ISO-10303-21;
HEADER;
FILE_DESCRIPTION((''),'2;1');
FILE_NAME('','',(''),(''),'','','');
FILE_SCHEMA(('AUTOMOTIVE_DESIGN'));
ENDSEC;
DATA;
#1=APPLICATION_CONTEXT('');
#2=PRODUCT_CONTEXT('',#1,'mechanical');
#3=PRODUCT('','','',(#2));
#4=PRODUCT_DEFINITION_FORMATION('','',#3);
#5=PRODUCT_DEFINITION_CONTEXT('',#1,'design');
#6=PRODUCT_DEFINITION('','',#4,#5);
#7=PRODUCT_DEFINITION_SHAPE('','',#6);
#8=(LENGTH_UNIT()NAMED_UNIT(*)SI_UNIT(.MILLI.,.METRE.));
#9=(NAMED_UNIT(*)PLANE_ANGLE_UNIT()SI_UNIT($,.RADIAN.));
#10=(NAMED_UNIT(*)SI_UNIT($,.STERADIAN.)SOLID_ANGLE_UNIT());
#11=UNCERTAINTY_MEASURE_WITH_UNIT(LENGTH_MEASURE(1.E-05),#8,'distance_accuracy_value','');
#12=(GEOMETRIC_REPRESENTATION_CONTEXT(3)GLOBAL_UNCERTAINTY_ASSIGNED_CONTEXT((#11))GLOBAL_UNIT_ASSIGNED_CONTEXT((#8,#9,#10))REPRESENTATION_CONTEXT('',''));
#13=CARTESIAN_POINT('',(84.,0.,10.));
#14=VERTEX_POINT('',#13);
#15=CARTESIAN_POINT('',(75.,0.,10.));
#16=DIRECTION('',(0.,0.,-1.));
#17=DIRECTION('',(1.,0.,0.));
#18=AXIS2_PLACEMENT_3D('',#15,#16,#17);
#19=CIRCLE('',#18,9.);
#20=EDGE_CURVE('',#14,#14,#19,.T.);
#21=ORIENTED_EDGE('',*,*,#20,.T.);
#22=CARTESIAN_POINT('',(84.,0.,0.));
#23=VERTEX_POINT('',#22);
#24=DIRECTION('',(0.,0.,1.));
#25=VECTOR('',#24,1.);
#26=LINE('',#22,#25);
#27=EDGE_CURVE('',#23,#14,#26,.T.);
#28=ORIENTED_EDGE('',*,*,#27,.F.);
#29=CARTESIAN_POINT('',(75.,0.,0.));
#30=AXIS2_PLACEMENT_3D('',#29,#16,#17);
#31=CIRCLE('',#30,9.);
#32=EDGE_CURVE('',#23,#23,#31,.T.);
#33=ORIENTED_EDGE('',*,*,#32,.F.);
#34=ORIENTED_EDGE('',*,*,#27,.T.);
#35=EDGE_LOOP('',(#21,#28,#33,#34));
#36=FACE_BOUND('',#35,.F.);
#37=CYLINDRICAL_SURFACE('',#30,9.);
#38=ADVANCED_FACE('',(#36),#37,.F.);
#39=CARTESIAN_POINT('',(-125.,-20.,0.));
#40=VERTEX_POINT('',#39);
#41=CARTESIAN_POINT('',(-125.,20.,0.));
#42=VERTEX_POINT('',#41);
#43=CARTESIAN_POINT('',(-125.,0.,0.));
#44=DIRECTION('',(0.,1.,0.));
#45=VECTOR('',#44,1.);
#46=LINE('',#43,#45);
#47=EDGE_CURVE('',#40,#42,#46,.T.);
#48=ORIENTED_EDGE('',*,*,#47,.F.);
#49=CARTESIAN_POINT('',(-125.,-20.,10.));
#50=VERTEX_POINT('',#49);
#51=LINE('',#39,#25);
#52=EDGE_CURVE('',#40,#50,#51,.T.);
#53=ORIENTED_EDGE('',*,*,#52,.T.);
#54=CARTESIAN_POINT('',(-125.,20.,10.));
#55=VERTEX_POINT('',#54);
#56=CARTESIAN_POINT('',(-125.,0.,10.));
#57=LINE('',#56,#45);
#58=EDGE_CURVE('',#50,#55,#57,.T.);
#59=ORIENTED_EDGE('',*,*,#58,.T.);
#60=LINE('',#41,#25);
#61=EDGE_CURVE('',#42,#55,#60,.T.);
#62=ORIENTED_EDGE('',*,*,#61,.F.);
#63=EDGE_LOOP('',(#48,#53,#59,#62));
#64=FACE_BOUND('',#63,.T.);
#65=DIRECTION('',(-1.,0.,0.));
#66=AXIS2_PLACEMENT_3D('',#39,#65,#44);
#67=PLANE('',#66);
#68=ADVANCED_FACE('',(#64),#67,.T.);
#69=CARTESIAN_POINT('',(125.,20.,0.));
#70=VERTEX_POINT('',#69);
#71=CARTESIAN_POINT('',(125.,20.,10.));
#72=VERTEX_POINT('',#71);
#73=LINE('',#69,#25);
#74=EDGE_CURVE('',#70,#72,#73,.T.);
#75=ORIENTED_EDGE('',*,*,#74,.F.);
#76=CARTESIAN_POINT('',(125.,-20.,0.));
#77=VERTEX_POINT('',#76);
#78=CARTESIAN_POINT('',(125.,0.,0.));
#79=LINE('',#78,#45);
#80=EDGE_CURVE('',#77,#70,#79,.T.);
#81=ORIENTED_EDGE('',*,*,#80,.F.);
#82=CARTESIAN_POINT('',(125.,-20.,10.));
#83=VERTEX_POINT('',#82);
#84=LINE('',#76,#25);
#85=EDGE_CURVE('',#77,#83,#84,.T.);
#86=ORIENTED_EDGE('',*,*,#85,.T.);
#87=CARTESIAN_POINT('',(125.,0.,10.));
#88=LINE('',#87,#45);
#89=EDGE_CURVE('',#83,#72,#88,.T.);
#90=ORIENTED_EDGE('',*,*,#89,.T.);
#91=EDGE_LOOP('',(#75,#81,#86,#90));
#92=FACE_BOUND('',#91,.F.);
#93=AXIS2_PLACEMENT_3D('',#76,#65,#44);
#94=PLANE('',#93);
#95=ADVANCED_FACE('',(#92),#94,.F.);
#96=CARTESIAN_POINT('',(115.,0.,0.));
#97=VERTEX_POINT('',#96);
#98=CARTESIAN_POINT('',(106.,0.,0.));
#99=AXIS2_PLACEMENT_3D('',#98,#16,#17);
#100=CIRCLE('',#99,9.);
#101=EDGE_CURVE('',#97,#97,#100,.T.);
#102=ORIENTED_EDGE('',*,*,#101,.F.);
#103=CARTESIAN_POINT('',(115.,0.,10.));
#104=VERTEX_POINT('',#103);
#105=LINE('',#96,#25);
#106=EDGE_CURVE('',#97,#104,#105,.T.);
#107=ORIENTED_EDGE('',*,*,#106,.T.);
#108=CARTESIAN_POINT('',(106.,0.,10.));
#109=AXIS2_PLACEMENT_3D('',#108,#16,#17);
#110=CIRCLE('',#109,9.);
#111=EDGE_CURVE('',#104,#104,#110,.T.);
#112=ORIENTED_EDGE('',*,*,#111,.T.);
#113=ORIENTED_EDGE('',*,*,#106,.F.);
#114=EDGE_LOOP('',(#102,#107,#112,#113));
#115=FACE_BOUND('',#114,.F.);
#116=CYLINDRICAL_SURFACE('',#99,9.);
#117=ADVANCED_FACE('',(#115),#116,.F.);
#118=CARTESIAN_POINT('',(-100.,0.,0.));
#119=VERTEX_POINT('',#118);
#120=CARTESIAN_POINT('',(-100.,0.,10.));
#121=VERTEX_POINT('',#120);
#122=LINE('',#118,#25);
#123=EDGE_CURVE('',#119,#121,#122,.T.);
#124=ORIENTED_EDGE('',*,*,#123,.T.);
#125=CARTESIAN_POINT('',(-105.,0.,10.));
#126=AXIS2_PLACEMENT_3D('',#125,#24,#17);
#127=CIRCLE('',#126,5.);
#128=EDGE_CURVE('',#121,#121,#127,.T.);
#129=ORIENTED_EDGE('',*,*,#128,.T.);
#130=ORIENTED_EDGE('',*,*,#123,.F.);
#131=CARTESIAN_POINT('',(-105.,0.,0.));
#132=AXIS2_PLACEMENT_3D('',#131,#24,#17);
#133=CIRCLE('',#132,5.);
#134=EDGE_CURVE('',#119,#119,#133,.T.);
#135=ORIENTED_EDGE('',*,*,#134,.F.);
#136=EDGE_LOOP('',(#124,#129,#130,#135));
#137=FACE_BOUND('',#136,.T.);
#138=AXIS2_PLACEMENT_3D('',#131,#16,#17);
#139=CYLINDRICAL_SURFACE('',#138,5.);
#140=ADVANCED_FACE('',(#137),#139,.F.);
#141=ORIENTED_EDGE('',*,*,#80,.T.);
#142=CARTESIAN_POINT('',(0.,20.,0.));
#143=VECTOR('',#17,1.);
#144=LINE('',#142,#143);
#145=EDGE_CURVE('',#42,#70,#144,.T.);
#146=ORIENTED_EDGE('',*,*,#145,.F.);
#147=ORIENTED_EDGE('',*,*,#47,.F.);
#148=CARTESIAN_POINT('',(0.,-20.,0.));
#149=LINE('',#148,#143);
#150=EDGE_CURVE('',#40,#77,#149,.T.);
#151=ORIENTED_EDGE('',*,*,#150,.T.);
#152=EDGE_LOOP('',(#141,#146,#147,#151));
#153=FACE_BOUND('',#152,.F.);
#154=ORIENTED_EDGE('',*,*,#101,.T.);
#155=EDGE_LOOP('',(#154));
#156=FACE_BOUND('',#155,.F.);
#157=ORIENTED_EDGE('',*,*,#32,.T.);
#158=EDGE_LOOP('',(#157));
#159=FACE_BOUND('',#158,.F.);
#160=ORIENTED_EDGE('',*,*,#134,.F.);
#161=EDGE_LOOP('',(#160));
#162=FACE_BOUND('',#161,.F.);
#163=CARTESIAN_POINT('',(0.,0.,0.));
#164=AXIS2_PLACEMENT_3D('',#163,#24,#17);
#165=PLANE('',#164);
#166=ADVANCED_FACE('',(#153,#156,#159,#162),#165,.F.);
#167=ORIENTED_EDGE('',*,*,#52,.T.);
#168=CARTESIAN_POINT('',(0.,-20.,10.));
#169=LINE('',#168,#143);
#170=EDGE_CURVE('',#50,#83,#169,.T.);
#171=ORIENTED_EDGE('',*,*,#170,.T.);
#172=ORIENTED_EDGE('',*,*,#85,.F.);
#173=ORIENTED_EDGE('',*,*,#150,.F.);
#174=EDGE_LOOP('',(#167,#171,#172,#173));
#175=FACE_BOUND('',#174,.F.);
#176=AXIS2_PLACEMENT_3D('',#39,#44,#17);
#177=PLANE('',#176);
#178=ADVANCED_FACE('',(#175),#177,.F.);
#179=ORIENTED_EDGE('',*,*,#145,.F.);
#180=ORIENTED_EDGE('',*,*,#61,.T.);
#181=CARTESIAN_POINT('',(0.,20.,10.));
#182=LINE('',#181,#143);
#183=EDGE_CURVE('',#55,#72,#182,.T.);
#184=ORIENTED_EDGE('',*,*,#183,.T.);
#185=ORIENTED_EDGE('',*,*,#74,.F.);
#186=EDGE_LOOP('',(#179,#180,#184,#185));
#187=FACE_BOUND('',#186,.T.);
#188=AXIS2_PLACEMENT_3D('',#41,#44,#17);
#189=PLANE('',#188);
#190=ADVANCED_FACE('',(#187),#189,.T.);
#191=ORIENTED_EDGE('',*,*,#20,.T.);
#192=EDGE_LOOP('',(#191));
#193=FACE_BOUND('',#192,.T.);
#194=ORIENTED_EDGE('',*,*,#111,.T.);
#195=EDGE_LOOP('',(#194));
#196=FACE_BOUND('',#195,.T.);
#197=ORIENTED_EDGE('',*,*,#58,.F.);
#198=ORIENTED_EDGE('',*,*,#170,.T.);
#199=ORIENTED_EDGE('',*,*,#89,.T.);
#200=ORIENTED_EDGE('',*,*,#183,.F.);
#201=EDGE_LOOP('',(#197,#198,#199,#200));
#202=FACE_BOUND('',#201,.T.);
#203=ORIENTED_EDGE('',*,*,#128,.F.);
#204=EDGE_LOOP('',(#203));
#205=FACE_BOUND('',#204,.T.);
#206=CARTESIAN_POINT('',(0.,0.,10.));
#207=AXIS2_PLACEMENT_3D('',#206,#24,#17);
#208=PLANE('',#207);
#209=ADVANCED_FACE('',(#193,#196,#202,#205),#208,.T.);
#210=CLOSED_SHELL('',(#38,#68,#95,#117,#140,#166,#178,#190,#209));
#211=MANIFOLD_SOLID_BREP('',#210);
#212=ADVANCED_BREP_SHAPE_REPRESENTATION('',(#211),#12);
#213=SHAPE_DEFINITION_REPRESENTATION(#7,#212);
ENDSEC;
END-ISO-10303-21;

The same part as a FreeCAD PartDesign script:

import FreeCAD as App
import Part
import Sketcher
Q = App.Units.Quantity

doc = App.newDocument("Part")
body = doc.addObject("PartDesign::Body", "Body")

# Sketch on XY plane
sketch1 = doc.addObject("Sketcher::SketchObject", "Sketch")
body.addObject(sketch1)
sketch1.AttachmentSupport = (doc.XY_Plane, [""])
sketch1.MapMode = "FlatFace"
sketch1.addGeometry([
    Part.LineSegment(App.Vector(-125, 20, 0), App.Vector(-125, -20, 0)),  # 0
    Part.LineSegment(App.Vector(-125, -20, 0), App.Vector(125, -20, 0)),  # 1
    Part.LineSegment(App.Vector(125, -20, 0), App.Vector(125, 20, 0)),  # 2
    Part.LineSegment(App.Vector(125, 20, 0), App.Vector(-125, 20, 0)),  # 3
    Part.Circle(App.Vector(-105, 0, 0), App.Vector(0, 0, 1), 5),  # 4
], False)
sketch1.addConstraint([
    Sketcher.Constraint("Coincident", 0, 2, 1, 1),
    Sketcher.Constraint("Coincident", 1, 2, 2, 1),
    Sketcher.Constraint("Coincident", 2, 2, 3, 1),
    Sketcher.Constraint("Coincident", 3, 2, 0, 1),
    Sketcher.Constraint("Vertical", 0),
    Sketcher.Constraint("Horizontal", 1),
    Sketcher.Constraint("Vertical", 2),
    Sketcher.Constraint("Horizontal", 3),
    Sketcher.Constraint("Symmetric", 0, 2, 2, 2, -1, 1),
    Sketcher.Constraint("PointOnObject", 4, 3, -1),
    Sketcher.Constraint("Diameter", 4, Q("10 mm")),
    Sketcher.Constraint("DistanceX", 1, 1, 1, 2, Q("250 mm")),
    Sketcher.Constraint("DistanceY", 0, 2, 0, 1, Q("40 mm")),
    Sketcher.Constraint("DistanceX", 4, 3, -1, 1, Q("105 mm")),
])
pad1 = doc.addObject("PartDesign::Pad", "Pad")
body.addObject(pad1)
pad1.Profile = sketch1
pad1.Length = 10

# Sketch on XY plane
sketch2 = doc.addObject("Sketcher::SketchObject", "Sketch001")
body.addObject(sketch2)
sketch2.AttachmentSupport = (doc.XY_Plane, [""])
sketch2.MapMode = "FlatFace"
sketch2.addGeometry(Part.Circle(App.Vector(106, 0, 0), App.Vector(0, 0, 1), 9), False)
sketch2.addConstraint([
    Sketcher.Constraint("PointOnObject", 0, 3, -1),
    Sketcher.Constraint("Diameter", 0, Q("18 mm")),
    Sketcher.Constraint("DistanceX", -1, 1, 0, 3, Q("106 mm")),
])
pocket1 = doc.addObject("PartDesign::Pocket", "Pocket")
body.addObject(pocket1)
pocket1.Profile = sketch2
pocket1.Length = 25
pocket1.Reversed = True

# Sketch on XY plane
sketch3 = doc.addObject("Sketcher::SketchObject", "Sketch002")
body.addObject(sketch3)
sketch3.AttachmentSupport = (doc.XY_Plane, [""])
sketch3.MapMode = "FlatFace"
sketch3.addGeometry(Part.Circle(App.Vector(75, 0, 0), App.Vector(0, 0, 1), 9), False)
sketch3.addConstraint([
    Sketcher.Constraint("PointOnObject", 0, 3, -1),
    Sketcher.Constraint("Diameter", 0, Q("18 mm")),
    Sketcher.Constraint("DistanceX", -1, 1, 0, 3, Q("75 mm")),
])
pocket2 = doc.addObject("PartDesign::Pocket", "Pocket001")
body.addObject(pocket2)
pocket2.Profile = sketch3
pocket2.Length = 25
pocket2.Reversed = True

doc.recompute()
